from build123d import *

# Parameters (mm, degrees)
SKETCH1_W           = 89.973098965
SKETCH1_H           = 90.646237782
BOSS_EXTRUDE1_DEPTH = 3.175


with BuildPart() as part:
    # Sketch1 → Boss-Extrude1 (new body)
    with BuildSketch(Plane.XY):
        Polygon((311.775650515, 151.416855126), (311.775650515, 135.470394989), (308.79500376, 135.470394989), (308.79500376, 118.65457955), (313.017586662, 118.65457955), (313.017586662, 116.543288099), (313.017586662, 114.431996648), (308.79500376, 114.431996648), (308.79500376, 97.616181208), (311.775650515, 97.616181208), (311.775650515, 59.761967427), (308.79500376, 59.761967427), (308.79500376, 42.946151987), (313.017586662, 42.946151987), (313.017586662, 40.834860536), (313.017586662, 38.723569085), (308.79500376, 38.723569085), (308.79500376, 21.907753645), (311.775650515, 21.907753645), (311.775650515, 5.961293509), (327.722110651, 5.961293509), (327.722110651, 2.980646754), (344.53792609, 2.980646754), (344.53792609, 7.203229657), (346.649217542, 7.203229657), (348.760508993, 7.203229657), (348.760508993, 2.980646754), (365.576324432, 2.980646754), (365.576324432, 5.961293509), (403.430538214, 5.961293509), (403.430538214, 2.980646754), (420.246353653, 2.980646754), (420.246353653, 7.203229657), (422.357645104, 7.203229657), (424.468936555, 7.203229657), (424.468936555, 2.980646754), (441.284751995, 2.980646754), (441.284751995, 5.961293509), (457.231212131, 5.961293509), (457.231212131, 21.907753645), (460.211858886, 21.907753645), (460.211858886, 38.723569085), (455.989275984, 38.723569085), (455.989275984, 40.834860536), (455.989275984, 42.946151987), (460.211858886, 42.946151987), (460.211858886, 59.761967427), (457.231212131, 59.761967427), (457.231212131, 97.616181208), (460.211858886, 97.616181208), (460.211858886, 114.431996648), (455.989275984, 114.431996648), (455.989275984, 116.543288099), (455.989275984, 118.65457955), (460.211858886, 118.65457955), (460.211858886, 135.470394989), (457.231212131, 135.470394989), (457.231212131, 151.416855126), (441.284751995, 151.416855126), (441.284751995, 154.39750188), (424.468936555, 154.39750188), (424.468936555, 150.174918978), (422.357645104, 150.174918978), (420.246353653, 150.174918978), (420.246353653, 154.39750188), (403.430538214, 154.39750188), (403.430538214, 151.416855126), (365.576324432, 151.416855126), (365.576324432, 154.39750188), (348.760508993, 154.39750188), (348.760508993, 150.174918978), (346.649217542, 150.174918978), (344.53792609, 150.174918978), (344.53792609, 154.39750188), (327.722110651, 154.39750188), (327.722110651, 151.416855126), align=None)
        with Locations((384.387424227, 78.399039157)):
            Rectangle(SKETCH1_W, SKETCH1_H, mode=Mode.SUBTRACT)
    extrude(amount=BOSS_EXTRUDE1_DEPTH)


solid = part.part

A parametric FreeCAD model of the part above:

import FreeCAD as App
import Part
import Sketcher
Q = App.Units.Quantity

doc = App.newDocument("Part")
body = doc.addObject("PartDesign::Body", "Body")

sketch1 = doc.addObject("Sketcher::SketchObject", "Sketch")
body.addObject(sketch1)
sketch1.AttachmentSupport = (doc.XY_Plane, [""])
sketch1.MapMode = "FlatFace"
sketch1.addGeometry([
    Part.LineSegment(App.Vector(311.8, 151.4, 0), App.Vector(311.8, 135.5, 0)),
    Part.LineSegment(App.Vector(311.8, 135.5, 0), App.Vector(308.8, 135.5, 0)),
    Part.LineSegment(App.Vector(308.8, 135.5, 0), App.Vector(308.8, 118.7, 0)),
    Part.LineSegment(App.Vector(308.8, 118.7, 0), App.Vector(313, 118.7, 0)),
    Part.LineSegment(App.Vector(313, 118.7, 0), App.Vector(313, 114.4, 0)),
    Part.LineSegment(App.Vector(313, 114.4, 0), App.Vector(308.8, 114.4, 0)),
    Part.LineSegment(App.Vector(308.8, 114.4, 0), App.Vector(308.8, 97.6, 0)),
    Part.LineSegment(App.Vector(308.8, 97.6, 0), App.Vector(311.8, 97.6, 0)),
    Part.LineSegment(App.Vector(311.8, 97.6, 0), App.Vector(311.8, 59.8, 0)),
    Part.LineSegment(App.Vector(311.8, 59.8, 0), App.Vector(308.8, 59.8, 0)),
    Part.LineSegment(App.Vector(308.8, 59.8, 0), App.Vector(308.8, 42.9, 0)),
    Part.LineSegment(App.Vector(308.8, 42.9, 0), App.Vector(313, 42.9, 0)),
    Part.LineSegment(App.Vector(313, 42.9, 0), App.Vector(313, 38.7, 0)),
    Part.LineSegment(App.Vector(313, 38.7, 0), App.Vector(308.8, 38.7, 0)),
    Part.LineSegment(App.Vector(308.8, 38.7, 0), App.Vector(308.8, 21.9, 0)),
    Part.LineSegment(App.Vector(308.8, 21.9, 0), App.Vector(311.8, 21.9, 0)),
    Part.LineSegment(App.Vector(311.8, 21.9, 0), App.Vector(311.8, 6, 0)),
    Part.LineSegment(App.Vector(311.8, 6, 0), App.Vector(327.7, 6, 0)),
    Part.LineSegment(App.Vector(327.7, 6, 0), App.Vector(327.7, 3, 0)),
    Part.LineSegment(App.Vector(327.7, 3, 0), App.Vector(344.5, 3, 0)),
    Part.LineSegment(App.Vector(344.5, 3, 0), App.Vector(344.5, 7.2, 0)),
    Part.LineSegment(App.Vector(344.5, 7.2, 0), App.Vector(348.8, 7.2, 0)),
    Part.LineSegment(App.Vector(348.8, 7.2, 0), App.Vector(348.8, 3, 0)),
    Part.LineSegment(App.Vector(348.8, 3, 0), App.Vector(365.6, 3, 0)),
    Part.LineSegment(App.Vector(365.6, 3, 0), App.Vector(365.6, 6, 0)),
    Part.LineSegment(App.Vector(365.6, 6, 0), App.Vector(403.4, 6, 0)),
    Part.LineSegment(App.Vector(403.4, 6, 0), App.Vector(403.4, 3, 0)),
    Part.LineSegment(App.Vector(403.4, 3, 0), App.Vector(420.2, 3, 0)),
    Part.LineSegment(App.Vector(420.2, 3, 0), App.Vector(420.2, 7.2, 0)),
    Part.LineSegment(App.Vector(420.2, 7.2, 0), App.Vector(424.5, 7.2, 0)),
    Part.LineSegment(App.Vector(424.5, 7.2, 0), App.Vector(424.5, 3, 0)),
    Part.LineSegment(App.Vector(424.5, 3, 0), App.Vector(441.3, 3, 0)),
    Part.LineSegment(App.Vector(441.3, 3, 0), App.Vector(441.3, 6, 0)),
    Part.LineSegment(App.Vector(441.3, 6, 0), App.Vector(457.2, 6, 0)),
    Part.LineSegment(App.Vector(457.2, 6, 0), App.Vector(457.2, 21.9, 0)),
    Part.LineSegment(App.Vector(457.2, 21.9, 0), App.Vector(460.2, 21.9, 0)),
    Part.LineSegment(App.Vector(460.2, 21.9, 0), App.Vector(460.2, 38.7, 0)),
    Part.LineSegment(App.Vector(460.2, 38.7, 0), App.Vector(456, 38.7, 0)),
    Part.LineSegment(App.Vector(456, 38.7, 0), App.Vector(456, 42.9, 0)),
    Part.LineSegment(App.Vector(456, 42.9, 0), App.Vector(460.2, 42.9, 0)),
    Part.LineSegment(App.Vector(460.2, 42.9, 0), App.Vector(460.2, 59.8, 0)),
    Part.LineSegment(App.Vector(460.2, 59.8, 0), App.Vector(457.2, 59.8, 0)),
    Part.LineSegment(App.Vector(457.2, 59.8, 0), App.Vector(457.2, 97.6, 0)),
    Part.LineSegment(App.Vector(457.2, 97.6, 0), App.Vector(460.2, 97.6, 0)),
    Part.LineSegment(App.Vector(460.2, 97.6, 0), App.Vector(460.2, 114.4, 0)),
    Part.LineSegment(App.Vector(460.2, 114.4, 0), App.Vector(456, 114.4, 0)),
    Part.LineSegment(App.Vector(456, 114.4, 0), App.Vector(456, 118.7, 0)),
    Part.LineSegment(App.Vector(456, 118.7, 0), App.Vector(460.2, 118.7, 0)),
    Part.LineSegment(App.Vector(460.2, 118.7, 0), App.Vector(460.2, 135.5, 0)),
    Part.LineSegment(App.Vector(460.2, 135.5, 0), App.Vector(457.2, 135.5, 0)),
    Part.LineSegment(App.Vector(457.2, 135.5, 0), App.Vector(457.2, 151.4, 0)),
    Part.LineSegment(App.Vector(457.2, 151.4, 0), App.Vector(441.3, 151.4, 0)),
    Part.LineSegment(App.Vector(441.3, 151.4, 0), App.Vector(441.3, 154.4, 0)),
    Part.LineSegment(App.Vector(441.3, 154.4, 0), App.Vector(424.5, 154.4, 0)),
    Part.LineSegment(App.Vector(424.5, 154.4, 0), App.Vector(424.5, 150.2, 0)),
    Part.LineSegment(App.Vector(424.5, 150.2, 0), App.Vector(420.2, 150.2, 0)),
    Part.LineSegment(App.Vector(420.2, 150.2, 0), App.Vector(420.2, 154.4, 0)),
    Part.LineSegment(App.Vector(420.2, 154.4, 0), App.Vector(403.4, 154.4, 0)),
    Part.LineSegment(App.Vector(403.4, 154.4, 0), App.Vector(403.4, 151.4, 0)),
    Part.LineSegment(App.Vector(403.4, 151.4, 0), App.Vector(365.6, 151.4, 0)),
    Part.LineSegment(App.Vector(365.6, 151.4, 0), App.Vector(365.6, 154.4, 0)),
    Part.LineSegment(App.Vector(365.6, 154.4, 0), App.Vector(348.8, 154.4, 0)),
    Part.LineSegment(App.Vector(348.8, 154.4, 0), App.Vector(348.8, 150.2, 0)),
    Part.LineSegment(App.Vector(348.8, 150.2, 0), App.Vector(344.5, 150.2, 0)),
    Part.LineSegment(App.Vector(344.5, 150.2, 0), App.Vector(344.5, 154.4, 0)),
    Part.LineSegment(App.Vector(344.5, 154.4, 0), App.Vector(327.7, 154.4, 0)),
    Part.LineSegment(App.Vector(327.7, 154.4, 0), App.Vector(327.7, 151.4, 0)),
    Part.LineSegment(App.Vector(327.7, 151.4, 0), App.Vector(311.8, 151.4, 0)),
    Part.LineSegment(App.Vector(429.4, 33.1, 0), App.Vector(339.4, 33.1, 0)),
    Part.LineSegment(App.Vector(339.4, 33.1, 0), App.Vector(339.4, 123.7, 0)),
    Part.LineSegment(App.Vector(339.4, 123.7, 0), App.Vector(429.4, 123.7, 0)),
    Part.LineSegment(App.Vector(429.4, 123.7, 0), App.Vector(429.4, 33.1, 0)),
], False)
sketch1.addConstraint([
    Sketcher.Constraint("Coincident", 0, 2, 1, 1),
    Sketcher.Constraint("Coincident", 1, 2, 2, 1),
    Sketcher.Constraint("Coincident", 2, 2, 3, 1),
    Sketcher.Constraint("Coincident", 3, 2, 4, 1),
    Sketcher.Constraint("Coincident", 4, 2, 5, 1),
    Sketcher.Constraint("Coincident", 5, 2, 6, 1),
    Sketcher.Constraint("Coincident", 6, 2, 7, 1),
    Sketcher.Constraint("Coincident", 7, 2, 8, 1),
    Sketcher.Constraint("Coincident", 8, 2, 9, 1),
    Sketcher.Constraint("Coincident", 9, 2, 10, 1),
    Sketcher.Constraint("Coincident", 10, 2, 11, 1),
    Sketcher.Constraint("Coincident", 11, 2, 12, 1),
    Sketcher.Constraint("Coincident", 12, 2, 13, 1),
    Sketcher.Constraint("Coincident", 13, 2, 14, 1),
    Sketcher.Constraint("Coincident", 14, 2, 15, 1),
    Sketcher.Constraint("Coincident", 15, 2, 16, 1),
    Sketcher.Constraint("Coincident", 16, 2, 17, 1),
    Sketcher.Constraint("Coincident", 17, 2, 18, 1),
    Sketcher.Constraint("Coincident", 18, 2, 19, 1),
    Sketcher.Constraint("Coincident", 19, 2, 20, 1),
    Sketcher.Constraint("Coincident", 20, 2, 21, 1),
    Sketcher.Constraint("Coincident", 21, 2, 22, 1),
    Sketcher.Constraint("Coincident", 22, 2, 23, 1),
    Sketcher.Constraint("Coincident", 23, 2, 24, 1),
    Sketcher.Constraint("Coincident", 24, 2, 25, 1),
    Sketcher.Constraint("Coincident", 25, 2, 26, 1),
    Sketcher.Constraint("Coincident", 26, 2, 27, 1),
    Sketcher.Constraint("Coincident", 27, 2, 28, 1),
    Sketcher.Constraint("Coincident", 28, 2, 29, 1),
    Sketcher.Constraint("Coincident", 29, 2, 30, 1),
    Sketcher.Constraint("Coincident", 30, 2, 31, 1),
    Sketcher.Constraint("Coincident", 31, 2, 32, 1),
    Sketcher.Constraint("Coincident", 32, 2, 33, 1),
    Sketcher.Constraint("Coincident", 33, 2, 34, 1),
    Sketcher.Constraint("Coincident", 34, 2, 35, 1),
    Sketcher.Constraint("Coincident", 35, 2, 36, 1),
    Sketcher.Constraint("Coincident", 36, 2, 37, 1),
    Sketcher.Constraint("Coincident", 37, 2, 38, 1),
    Sketcher.Constraint("Coincident", 38, 2, 39, 1),
    Sketcher.Constraint("Coincident", 39, 2, 40, 1),
    Sketcher.Constraint("Coincident", 40, 2, 41, 1),
    Sketcher.Constraint("Coincident", 41, 2, 42, 1),
    Sketcher.Constraint("Coincident", 42, 2, 43, 1),
    Sketcher.Constraint("Coincident", 43, 2, 44, 1),
    Sketcher.Constraint("Coincident", 44, 2, 45, 1),
    Sketcher.Constraint("Coincident", 45, 2, 46, 1),
    Sketcher.Constraint("Coincident", 46, 2, 47, 1),
    Sketcher.Constraint("Coincident", 47, 2, 48, 1),
    Sketcher.Constraint("Coincident", 48, 2, 49, 1),
    Sketcher.Constraint("Coincident", 49, 2, 50, 1),
    Sketcher.Constraint("Coincident", 50, 2, 51, 1),
    Sketcher.Constraint("Coincident", 51, 2, 52, 1),
    Sketcher.Constraint("Coincident", 52, 2, 53, 1),
    Sketcher.Constraint("Coincident", 53, 2, 54, 1),
    Sketcher.Constraint("Coincident", 54, 2, 55, 1),
    Sketcher.Constraint("Coincident", 55, 2, 56, 1),
    Sketcher.Constraint("Coincident", 56, 2, 57, 1),
    Sketcher.Constraint("Coincident", 57, 2, 58, 1),
    Sketcher.Constraint("Coincident", 58, 2, 59, 1),
    Sketcher.Constraint("Coincident", 59, 2, 60, 1),
    Sketcher.Constraint("Coincident", 60, 2, 61, 1),
    Sketcher.Constraint("Coincident", 61, 2, 62, 1),
    Sketcher.Constraint("Coincident", 62, 2, 63, 1),
    Sketcher.Constraint("Coincident", 63, 2, 64, 1),
    Sketcher.Constraint("Coincident", 64, 2, 65, 1),
    Sketcher.Constraint("Coincident", 65, 2, 66, 1),
    Sketcher.Constraint("Coincident", 66, 2, 67, 1),
    Sketcher.Constraint("Coincident", 67, 2, 0, 1),
    Sketcher.Constraint("Coincident", 68, 2, 69, 1),
    Sketcher.Constraint("Coincident", 69, 2, 70, 1),
    Sketcher.Constraint("Coincident", 70, 2, 71, 1),
    Sketcher.Constraint("Coincident", 71, 2, 68, 1),
    Sketcher.Constraint("Vertical", 0),
    Sketcher.Constraint("Horizontal", 1),
    Sketcher.Constraint("Vertical", 2),
    Sketcher.Constraint("Horizontal", 3),
    Sketcher.Constraint("Vertical", 4),
    Sketcher.Constraint("Horizontal", 5),
    Sketcher.Constraint("Vertical", 6),
    Sketcher.Constraint("Horizontal", 7),
    Sketcher.Constraint("Vertical", 8),
    Sketcher.Constraint("Horizontal", 9),
    Sketcher.Constraint("Vertical", 10),
    Sketcher.Constraint("Horizontal", 11),
    Sketcher.Constraint("Vertical", 12),
    Sketcher.Constraint("Horizontal", 13),
    Sketcher.Constraint("Vertical", 14),
    Sketcher.Constraint("Horizontal", 15),
    Sketcher.Constraint("Vertical", 16),
    Sketcher.Constraint("Horizontal", 17),
    Sketcher.Constraint("Vertical", 18),
    Sketcher.Constraint("Horizontal", 19),
    Sketcher.Constraint("Vertical", 20),
    Sketcher.Constraint("Horizontal", 21),
    Sketcher.Constraint("Vertical", 22),
    Sketcher.Constraint("Horizontal", 23),
    Sketcher.Constraint("Vertical", 24),
    Sketcher.Constraint("Horizontal", 25),
    Sketcher.Constraint("Vertical", 26),
    Sketcher.Constraint("Horizontal", 27),
    Sketcher.Constraint("Vertical", 28),
    Sketcher.Constraint("Horizontal", 29),
    Sketcher.Constraint("Vertical", 30),
    Sketcher.Constraint("Horizontal", 31),
    Sketcher.Constraint("Vertical", 32),
    Sketcher.Constraint("Horizontal", 33),
    Sketcher.Constraint("Vertical", 34),
    Sketcher.Constraint("Horizontal", 35),
    Sketcher.Constraint("Vertical", 36),
    Sketcher.Constraint("Horizontal", 37),
    Sketcher.Constraint("Vertical", 38),
    Sketcher.Constraint("Horizontal", 39),
    Sketcher.Constraint("Vertical", 40),
    Sketcher.Constraint("Horizontal", 41),
    Sketcher.Constraint("Vertical", 42),
    Sketcher.Constraint("Horizontal", 43),
    Sketcher.Constraint("Vertical", 44),
    Sketcher.Constraint("Horizontal", 45),
    Sketcher.Constraint("Vertical", 46),
    Sketcher.Constraint("Horizontal", 47),
    Sketcher.Constraint("Vertical", 48),
    Sketcher.Constraint("Horizontal", 49),
    Sketcher.Constraint("Vertical", 50),
    Sketcher.Constraint("Horizontal", 51),
    Sketcher.Constraint("Vertical", 52),
    Sketcher.Constraint("Horizontal", 53),
    Sketcher.Constraint("Vertical", 54),
    Sketcher.Constraint("Horizontal", 55),
    Sketcher.Constraint("Vertical", 56),
    Sketcher.Constraint("Horizontal", 57),
    Sketcher.Constraint("Vertical", 58),
    Sketcher.Constraint("Horizontal", 59),
    Sketcher.Constraint("Vertical", 60),
    Sketcher.Constraint("Horizontal", 61),
    Sketcher.Constraint("Vertical", 62),
    Sketcher.Constraint("Horizontal", 63),
    Sketcher.Constraint("Vertical", 64),
    Sketcher.Constraint("Horizontal", 65),
    Sketcher.Constraint("Vertical", 66),
    Sketcher.Constraint("Horizontal", 67),
    Sketcher.Constraint("Horizontal", 68),
    Sketcher.Constraint("Vertical", 69),
    Sketcher.Constraint("Horizontal", 70),
    Sketcher.Constraint("Vertical", 71),
    Sketcher.Constraint("Horizontal", 19, 2, 22, 2),
    Sketcher.Constraint("Horizontal", 17, 2, 24, 2),
    Sketcher.Constraint("Horizontal", 23, 2, 26, 2),
    Sketcher.Constraint("Horizontal", 21, 2, 28, 2),
    Sketcher.Constraint("Horizontal", 27, 2, 30, 2),
    Sketcher.Constraint("Horizontal", 25, 2, 32, 2),
    Sketcher.Constraint("Horizontal", 15, 2, 34, 2),
    Sketcher.Constraint("Horizontal", 13, 2, 36, 2),
    Sketcher.Constraint("Horizontal", 11, 2, 38, 2),
    Sketcher.Constraint("Horizontal", 9, 2, 40, 2),
    Sketcher.Constraint("Horizontal", 7, 2, 42, 2),
    Sketcher.Constraint("Horizontal", 5, 2, 44, 2),
    Sketcher.Constraint("Horizontal", 3, 2, 46, 2),
    Sketcher.Constraint("Horizontal", 1, 2, 48, 2),
    Sketcher.Constraint("Horizontal", 53, 2, 56, 2),
    Sketcher.Constraint("Horizontal", 51, 2, 58, 2),
    Sketcher.Constraint("Horizontal", 57, 2, 60, 2),
    Sketcher.Constraint("Horizontal", 55, 2, 62, 2),
    Sketcher.Constraint("Horizontal", 61, 2, 64, 2),
    Sketcher.Constraint("Horizontal", 59, 2, 66, 2),
    Sketcher.Constraint("Vertical", 2, 2, 5, 2),
    Sketcher.Constraint("Vertical", 0, 2, 7, 2),
    Sketcher.Constraint("Vertical", 6, 2, 9, 2),
    Sketcher.Constraint("Vertical", 4, 2, 11, 2),
    Sketcher.Constraint("Vertical", 10, 2, 13, 2),
    Sketcher.Constraint("Vertical", 8, 2, 15, 2),
    Sketcher.Constraint("Vertical", 36, 2, 39, 2),
    Sketcher.Constraint("Vertical", 34, 2, 41, 2),
    Sketcher.Constraint("Vertical", 40, 2, 43, 2),
    Sketcher.Constraint("Vertical", 38, 2, 45, 2),
    Sketcher.Constraint("Vertical", 44, 2, 47, 2),
    Sketcher.Constraint("Vertical", 42, 2, 49, 2),
    Sketcher.Constraint("Vertical", 32, 2, 51, 2),
    Sketcher.Constraint("Vertical", 30, 2, 53, 2),
    Sketcher.Constraint("Vertical", 28, 2, 55, 2),
    Sketcher.Constraint("Vertical", 26, 2, 57, 2),
    Sketcher.Constraint("Vertical", 24, 2, 59, 2),
    Sketcher.Constraint("Vertical", 22, 2, 61, 2),
    Sketcher.Constraint("Vertical", 20, 2, 63, 2),
    Sketcher.Constraint("Vertical", 18, 2, 65, 2),
    Sketcher.Constraint("Equal", 13, 21),
    Sketcher.Constraint("Equal", 19, 23),
    Sketcher.Constraint("Equal", 23, 27),
    Sketcher.Constraint("Equal", 21, 29),
    Sketcher.Constraint("Equal", 27, 31),
    Sketcher.Constraint("Equal", 17, 33),
    Sketcher.Constraint("Equal", 15, 35),
    Sketcher.Constraint("Equal", 29, 37),
    Sketcher.Constraint("Equal", 67, 0),
    Sketcher.Constraint("Equal", 65, 2),
    Sketcher.Constraint("Equal", 63, 4),
    Sketcher.Constraint("Equal", 2, 6),
    Sketcher.Constraint("Equal", 59, 8),
    Sketcher.Constraint("Equal", 6, 10),
    Sketcher.Constraint("Equal", 4, 12),
    Sketcher.Constraint("Equal", 10, 14),
    Sketcher.Constraint("Equal", 0, 16),
    Sketcher.Constraint("Equal", 49, 18),
    Sketcher.Constraint("Equal", 12, 20),
    Sketcher.Constraint("Equal", 32, 52),
    Sketcher.Constraint("Equal", 46, 54),
    Sketcher.Constraint("DistanceX", 68, 2, 68, 1, Q("89.973099 mm")),
    Sketcher.Constraint("DistanceX", 17, 1, 17, 2, Q("15.94646 mm")),
    Sketcher.Constraint("DistanceY", -1, 1, 52, 2, Q("154.397502 mm")),
    Sketcher.Constraint("DistanceX", 1, 2, 1, 1, Q("2.980647 mm")),
    Sketcher.Constraint("DistanceX", 3, 1, 3, 2, Q("4.222583 mm")),
    Sketcher.Constraint("DistanceX", 19, 1, 19, 2, Q("16.815815 mm")),
    Sketcher.Constraint("DistanceX", 25, 1, 25, 2, Q("37.854214 mm")),
    Sketcher.Constraint("DistanceY", 69, 1, 69, 2, Q("90.646238 mm")),
    Sketcher.Constraint("DistanceX", -1, 1, 0, 2, Q("311.775651 mm")),
    Sketcher.Constraint("DistanceY", -1, 1, 68, 2, Q("33.07592 mm")),
    Sketcher.Constraint("DistanceX", -1, 1, 68, 2, Q("339.400875 mm")),
])
pad1 = doc.addObject("PartDesign::Pad", "Pad")
body.addObject(pad1)
pad1.Profile = sketch1
pad1.Length = Q("0.125 in")

doc.recompute()
